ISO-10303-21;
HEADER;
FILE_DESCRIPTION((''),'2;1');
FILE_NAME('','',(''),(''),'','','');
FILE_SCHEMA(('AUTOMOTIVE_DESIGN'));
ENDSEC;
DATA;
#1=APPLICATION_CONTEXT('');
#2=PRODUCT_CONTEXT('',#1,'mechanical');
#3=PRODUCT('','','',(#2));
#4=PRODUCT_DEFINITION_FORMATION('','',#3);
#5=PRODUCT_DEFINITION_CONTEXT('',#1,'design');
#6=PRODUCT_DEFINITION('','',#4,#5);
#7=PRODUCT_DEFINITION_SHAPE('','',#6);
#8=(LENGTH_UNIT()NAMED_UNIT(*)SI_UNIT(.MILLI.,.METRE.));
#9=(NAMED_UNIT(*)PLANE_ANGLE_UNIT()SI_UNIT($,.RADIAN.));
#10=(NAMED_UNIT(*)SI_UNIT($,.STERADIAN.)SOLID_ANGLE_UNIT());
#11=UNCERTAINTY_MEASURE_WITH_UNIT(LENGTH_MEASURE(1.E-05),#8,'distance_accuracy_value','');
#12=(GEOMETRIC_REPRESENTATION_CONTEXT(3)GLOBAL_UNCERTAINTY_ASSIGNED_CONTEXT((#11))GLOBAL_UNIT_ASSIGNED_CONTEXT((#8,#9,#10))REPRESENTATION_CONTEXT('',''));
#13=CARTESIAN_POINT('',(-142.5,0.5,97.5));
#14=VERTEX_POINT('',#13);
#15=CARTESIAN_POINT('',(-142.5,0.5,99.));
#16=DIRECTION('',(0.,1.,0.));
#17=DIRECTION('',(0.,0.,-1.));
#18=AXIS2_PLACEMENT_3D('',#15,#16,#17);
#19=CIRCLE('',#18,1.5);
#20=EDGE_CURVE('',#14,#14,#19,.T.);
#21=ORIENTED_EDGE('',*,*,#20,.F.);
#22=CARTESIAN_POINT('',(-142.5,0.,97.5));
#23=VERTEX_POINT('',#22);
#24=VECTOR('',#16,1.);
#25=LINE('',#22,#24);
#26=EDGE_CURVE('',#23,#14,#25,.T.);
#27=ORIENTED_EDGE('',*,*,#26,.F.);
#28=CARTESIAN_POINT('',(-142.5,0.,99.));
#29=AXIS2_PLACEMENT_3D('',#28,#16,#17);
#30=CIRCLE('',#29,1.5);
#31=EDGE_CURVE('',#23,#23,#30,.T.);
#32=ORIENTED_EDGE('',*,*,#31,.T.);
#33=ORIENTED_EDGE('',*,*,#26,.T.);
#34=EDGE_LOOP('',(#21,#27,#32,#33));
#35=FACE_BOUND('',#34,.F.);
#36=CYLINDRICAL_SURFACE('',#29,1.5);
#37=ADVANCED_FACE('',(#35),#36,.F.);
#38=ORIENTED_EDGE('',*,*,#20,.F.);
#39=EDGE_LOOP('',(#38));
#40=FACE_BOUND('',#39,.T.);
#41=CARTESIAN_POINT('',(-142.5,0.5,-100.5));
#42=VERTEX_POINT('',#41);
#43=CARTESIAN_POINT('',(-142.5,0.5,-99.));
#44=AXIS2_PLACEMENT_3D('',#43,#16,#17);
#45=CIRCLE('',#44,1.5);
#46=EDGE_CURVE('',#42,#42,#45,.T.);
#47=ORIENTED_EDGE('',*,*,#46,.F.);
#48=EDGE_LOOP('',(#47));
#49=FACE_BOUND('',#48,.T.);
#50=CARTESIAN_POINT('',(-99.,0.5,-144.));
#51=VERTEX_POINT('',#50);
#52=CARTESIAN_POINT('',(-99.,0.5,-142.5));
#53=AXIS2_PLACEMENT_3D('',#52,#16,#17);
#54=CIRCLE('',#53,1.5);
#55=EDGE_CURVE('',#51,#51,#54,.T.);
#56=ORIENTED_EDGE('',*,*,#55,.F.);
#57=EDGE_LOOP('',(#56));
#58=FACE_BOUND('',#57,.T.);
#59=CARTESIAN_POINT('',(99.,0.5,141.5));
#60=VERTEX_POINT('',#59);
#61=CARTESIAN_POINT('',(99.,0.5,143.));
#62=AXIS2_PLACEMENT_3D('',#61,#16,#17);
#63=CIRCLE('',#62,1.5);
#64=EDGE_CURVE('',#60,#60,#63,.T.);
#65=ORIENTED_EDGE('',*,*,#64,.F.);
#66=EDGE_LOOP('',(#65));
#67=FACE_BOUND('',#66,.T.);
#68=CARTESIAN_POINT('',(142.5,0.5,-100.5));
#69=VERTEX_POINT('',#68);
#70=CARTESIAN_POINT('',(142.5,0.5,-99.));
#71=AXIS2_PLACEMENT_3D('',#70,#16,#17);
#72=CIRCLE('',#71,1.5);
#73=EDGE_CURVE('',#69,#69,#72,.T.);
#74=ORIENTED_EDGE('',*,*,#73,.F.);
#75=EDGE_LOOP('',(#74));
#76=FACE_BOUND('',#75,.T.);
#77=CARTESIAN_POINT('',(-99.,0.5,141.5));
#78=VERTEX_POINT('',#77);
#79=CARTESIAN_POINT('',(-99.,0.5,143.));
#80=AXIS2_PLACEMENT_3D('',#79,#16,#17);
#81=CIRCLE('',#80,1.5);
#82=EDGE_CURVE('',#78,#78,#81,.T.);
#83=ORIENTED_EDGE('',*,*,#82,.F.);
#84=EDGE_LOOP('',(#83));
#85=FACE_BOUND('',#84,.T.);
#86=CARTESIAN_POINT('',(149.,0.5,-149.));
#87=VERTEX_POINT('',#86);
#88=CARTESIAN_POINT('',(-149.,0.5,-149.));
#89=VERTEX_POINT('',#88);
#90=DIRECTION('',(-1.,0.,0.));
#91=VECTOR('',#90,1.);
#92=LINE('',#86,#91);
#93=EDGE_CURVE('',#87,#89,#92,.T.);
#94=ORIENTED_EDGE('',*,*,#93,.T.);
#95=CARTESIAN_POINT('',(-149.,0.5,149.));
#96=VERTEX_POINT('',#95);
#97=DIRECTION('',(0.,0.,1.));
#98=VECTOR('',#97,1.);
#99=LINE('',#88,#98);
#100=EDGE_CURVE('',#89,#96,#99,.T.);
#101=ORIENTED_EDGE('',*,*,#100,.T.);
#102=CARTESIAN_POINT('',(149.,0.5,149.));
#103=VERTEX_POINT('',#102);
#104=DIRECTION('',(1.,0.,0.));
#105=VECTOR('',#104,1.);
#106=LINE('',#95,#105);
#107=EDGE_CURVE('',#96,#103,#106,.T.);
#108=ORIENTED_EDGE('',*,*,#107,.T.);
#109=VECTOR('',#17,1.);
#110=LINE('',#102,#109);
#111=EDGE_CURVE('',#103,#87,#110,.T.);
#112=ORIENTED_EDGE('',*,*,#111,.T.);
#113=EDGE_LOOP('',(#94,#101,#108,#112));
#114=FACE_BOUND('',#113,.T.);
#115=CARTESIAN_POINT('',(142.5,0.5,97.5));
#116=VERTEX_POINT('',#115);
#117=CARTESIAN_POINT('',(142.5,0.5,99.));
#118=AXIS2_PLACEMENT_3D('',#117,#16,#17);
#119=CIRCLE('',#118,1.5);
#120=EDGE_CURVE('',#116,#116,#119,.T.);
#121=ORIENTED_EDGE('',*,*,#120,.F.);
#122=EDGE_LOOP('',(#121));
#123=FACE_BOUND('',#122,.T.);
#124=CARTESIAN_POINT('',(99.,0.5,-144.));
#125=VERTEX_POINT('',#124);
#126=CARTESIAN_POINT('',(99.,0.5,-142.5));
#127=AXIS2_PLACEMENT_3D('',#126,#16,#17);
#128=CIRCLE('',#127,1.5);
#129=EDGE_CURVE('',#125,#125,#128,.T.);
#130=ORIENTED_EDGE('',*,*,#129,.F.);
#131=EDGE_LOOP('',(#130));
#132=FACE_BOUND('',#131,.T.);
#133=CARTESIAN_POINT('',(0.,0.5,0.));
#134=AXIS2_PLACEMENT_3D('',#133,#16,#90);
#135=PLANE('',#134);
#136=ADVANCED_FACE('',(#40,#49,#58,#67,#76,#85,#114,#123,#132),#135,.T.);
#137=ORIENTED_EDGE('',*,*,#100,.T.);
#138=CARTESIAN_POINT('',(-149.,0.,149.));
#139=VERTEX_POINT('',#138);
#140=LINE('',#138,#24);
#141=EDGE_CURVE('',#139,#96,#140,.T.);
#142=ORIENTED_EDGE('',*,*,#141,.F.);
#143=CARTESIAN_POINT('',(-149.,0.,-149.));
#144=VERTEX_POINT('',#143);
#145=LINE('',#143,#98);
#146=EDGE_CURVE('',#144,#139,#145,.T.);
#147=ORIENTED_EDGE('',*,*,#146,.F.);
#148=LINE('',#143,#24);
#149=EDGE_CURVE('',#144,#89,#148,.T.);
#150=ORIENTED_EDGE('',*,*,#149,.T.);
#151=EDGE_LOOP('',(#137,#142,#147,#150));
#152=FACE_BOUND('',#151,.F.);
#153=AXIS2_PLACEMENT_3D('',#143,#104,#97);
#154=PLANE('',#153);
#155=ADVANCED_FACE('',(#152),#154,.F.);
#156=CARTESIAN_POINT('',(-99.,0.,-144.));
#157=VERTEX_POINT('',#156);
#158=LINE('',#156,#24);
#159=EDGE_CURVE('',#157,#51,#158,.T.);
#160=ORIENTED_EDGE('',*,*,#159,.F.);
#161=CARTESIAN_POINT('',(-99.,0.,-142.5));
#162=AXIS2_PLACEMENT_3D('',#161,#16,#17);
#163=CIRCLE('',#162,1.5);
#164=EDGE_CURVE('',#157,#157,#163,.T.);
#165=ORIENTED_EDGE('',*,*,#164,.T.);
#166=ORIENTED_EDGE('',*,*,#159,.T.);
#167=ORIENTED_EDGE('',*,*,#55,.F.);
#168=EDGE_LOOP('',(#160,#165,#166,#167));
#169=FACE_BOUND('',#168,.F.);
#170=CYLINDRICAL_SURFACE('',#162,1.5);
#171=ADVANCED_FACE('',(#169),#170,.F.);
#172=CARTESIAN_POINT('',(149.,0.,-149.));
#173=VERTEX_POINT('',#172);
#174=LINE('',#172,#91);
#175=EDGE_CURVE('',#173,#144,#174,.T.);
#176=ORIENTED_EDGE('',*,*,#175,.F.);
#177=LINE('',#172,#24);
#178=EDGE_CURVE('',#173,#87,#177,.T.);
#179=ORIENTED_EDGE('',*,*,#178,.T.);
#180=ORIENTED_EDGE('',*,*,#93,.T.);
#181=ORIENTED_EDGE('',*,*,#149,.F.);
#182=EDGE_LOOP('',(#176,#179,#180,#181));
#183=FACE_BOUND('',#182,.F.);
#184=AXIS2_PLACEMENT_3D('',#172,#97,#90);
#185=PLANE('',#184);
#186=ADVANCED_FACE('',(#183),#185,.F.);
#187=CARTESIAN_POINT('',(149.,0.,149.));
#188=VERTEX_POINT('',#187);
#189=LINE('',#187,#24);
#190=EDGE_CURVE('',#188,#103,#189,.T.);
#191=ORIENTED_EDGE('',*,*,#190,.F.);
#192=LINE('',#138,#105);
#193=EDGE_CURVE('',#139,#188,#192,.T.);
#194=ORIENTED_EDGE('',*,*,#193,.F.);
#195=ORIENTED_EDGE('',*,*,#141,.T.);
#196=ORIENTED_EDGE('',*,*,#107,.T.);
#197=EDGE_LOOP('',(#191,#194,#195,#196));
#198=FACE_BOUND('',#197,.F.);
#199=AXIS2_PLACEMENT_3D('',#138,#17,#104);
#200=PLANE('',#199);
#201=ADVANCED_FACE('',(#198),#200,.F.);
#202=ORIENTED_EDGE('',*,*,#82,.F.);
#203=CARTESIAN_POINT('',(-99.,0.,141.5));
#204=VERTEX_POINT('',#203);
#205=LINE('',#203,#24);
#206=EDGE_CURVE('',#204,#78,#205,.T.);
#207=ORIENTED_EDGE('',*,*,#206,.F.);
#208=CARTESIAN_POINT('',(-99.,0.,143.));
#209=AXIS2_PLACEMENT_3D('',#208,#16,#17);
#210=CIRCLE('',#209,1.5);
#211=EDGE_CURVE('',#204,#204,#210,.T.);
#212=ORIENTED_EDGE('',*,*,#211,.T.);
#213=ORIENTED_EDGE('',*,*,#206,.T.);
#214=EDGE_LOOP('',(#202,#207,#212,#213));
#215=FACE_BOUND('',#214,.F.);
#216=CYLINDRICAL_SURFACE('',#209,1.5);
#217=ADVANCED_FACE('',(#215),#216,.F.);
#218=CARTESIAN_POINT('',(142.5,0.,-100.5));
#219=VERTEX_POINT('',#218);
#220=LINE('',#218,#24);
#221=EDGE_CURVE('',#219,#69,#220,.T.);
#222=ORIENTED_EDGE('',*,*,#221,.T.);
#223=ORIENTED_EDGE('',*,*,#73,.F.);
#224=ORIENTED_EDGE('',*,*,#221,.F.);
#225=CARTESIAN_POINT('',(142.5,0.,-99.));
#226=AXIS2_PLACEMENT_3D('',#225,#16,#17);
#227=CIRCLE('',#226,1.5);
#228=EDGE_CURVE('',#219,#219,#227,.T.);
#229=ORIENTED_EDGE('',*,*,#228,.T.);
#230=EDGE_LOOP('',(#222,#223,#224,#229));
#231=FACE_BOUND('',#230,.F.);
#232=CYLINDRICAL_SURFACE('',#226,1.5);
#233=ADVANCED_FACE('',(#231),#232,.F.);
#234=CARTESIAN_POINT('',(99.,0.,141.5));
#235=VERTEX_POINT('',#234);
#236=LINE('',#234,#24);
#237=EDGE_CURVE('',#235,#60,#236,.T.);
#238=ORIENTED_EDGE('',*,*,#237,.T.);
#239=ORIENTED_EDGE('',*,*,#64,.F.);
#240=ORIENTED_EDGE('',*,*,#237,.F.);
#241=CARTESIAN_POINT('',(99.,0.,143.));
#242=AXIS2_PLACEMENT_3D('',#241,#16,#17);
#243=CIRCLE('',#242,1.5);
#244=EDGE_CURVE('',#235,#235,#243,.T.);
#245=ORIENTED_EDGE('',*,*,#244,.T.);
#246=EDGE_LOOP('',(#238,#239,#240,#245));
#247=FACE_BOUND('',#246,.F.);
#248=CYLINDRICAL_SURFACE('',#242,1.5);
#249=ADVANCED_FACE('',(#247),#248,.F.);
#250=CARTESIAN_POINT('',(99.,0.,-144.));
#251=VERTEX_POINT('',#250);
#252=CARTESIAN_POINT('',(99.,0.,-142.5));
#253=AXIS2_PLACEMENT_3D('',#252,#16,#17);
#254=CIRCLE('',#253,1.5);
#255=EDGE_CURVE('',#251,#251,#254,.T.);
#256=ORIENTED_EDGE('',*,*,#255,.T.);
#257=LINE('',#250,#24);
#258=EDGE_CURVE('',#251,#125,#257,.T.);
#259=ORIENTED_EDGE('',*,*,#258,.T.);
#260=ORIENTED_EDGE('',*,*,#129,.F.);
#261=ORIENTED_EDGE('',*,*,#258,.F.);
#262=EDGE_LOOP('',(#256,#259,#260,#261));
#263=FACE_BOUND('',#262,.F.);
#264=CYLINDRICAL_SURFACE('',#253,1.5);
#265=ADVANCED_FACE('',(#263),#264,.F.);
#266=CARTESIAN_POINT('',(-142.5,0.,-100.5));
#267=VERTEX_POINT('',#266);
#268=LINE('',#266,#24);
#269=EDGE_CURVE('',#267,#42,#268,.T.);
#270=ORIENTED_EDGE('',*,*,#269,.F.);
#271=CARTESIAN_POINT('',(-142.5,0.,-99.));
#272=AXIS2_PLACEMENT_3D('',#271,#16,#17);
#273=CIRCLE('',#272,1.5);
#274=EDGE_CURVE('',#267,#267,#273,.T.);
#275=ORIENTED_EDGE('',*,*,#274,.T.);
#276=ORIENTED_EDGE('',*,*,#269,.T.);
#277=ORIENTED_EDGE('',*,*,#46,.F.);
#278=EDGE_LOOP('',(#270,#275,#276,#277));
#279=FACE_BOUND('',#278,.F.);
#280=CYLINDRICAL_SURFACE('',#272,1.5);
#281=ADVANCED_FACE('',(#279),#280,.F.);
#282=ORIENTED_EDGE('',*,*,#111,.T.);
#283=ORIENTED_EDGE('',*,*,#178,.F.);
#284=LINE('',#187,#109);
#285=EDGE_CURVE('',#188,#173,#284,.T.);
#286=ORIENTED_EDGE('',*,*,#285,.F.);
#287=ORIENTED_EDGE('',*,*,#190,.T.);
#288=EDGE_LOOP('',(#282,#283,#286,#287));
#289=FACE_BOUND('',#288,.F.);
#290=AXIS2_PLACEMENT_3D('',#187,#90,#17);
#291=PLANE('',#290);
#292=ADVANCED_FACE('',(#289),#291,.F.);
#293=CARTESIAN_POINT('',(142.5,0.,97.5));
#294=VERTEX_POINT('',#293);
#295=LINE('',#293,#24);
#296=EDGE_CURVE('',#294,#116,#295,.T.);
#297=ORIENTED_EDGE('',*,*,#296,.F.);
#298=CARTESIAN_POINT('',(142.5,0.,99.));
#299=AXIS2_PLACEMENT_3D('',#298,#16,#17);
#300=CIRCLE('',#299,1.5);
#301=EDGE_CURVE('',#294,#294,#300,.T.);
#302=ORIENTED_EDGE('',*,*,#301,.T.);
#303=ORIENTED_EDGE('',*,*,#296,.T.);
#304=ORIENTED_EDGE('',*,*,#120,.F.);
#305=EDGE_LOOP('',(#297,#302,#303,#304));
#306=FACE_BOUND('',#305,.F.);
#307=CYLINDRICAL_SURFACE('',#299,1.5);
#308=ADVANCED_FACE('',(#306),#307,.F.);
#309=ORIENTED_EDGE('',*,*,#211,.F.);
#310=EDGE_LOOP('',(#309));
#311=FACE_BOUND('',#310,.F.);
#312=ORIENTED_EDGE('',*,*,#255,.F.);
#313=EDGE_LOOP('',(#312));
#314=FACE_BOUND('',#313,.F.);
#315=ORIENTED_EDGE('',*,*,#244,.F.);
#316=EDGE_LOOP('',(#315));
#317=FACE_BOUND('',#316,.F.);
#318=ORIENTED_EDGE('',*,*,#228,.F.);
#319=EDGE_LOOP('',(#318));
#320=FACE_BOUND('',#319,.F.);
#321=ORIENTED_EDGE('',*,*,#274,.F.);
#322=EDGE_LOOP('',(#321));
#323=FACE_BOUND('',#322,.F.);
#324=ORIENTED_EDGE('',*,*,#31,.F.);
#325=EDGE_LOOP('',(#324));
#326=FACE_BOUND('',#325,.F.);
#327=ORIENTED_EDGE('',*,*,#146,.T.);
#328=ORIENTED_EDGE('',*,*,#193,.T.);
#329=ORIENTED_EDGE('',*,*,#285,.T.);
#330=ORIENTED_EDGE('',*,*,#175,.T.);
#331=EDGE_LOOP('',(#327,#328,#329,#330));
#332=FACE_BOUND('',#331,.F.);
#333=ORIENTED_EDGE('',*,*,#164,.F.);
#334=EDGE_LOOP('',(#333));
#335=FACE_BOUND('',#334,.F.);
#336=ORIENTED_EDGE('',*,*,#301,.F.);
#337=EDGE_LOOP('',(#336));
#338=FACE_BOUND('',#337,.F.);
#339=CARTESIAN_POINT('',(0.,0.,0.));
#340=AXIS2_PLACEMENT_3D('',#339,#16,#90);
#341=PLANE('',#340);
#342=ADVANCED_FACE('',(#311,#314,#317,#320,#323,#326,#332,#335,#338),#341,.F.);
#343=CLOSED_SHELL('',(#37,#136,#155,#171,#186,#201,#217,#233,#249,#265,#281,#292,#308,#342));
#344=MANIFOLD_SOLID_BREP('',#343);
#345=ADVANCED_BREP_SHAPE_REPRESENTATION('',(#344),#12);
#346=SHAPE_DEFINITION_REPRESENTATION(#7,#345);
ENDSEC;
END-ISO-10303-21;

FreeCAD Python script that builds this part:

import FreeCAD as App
import Part
import Sketcher

V = App.Vector


def add_polygon(sketch, points):
    """Adds a closed chain of lines whose ends are joined by coincident constraints."""
    first, n = sketch.GeometryCount, len(points)
    for a, b in zip(points, points[1:] + points[:1]):
        sketch.addGeometry(Part.LineSegment(App.Vector(*a, 0), App.Vector(*b, 0)), False)
    for i in range(n):
        sketch.addConstraint(Sketcher.Constraint("Coincident", first + i, 2, first + (i + 1) % n, 1))

doc = App.newDocument("Part")
params = doc.addObject("Spreadsheet::Sheet", "Params")
for row, (alias, value) in enumerate([
    ("sketch1_width", "298 mm"),
    ("pad1_length", "0.5 mm"),
    ("sketch2_diameter", "3 mm"),
    ("hole_diameter", "3 mm"),
], start=1):
    params.set(f"A{row}", alias)
    params.set(f"B{row}", "=" + value)
    params.setAlias(f"B{row}", alias)

body = doc.addObject("PartDesign::Body", "Body")

# Sketch on XZ plane
sketch1 = doc.addObject("Sketcher::SketchObject", "Sketch")
body.addObject(sketch1)
sketch1.AttachmentSupport = (doc.XZ_Plane, [""])
sketch1.MapMode = "FlatFace"
add_polygon(sketch1, [(149, 149), (149, -149), (-149, -149), (-149, 149)])  # lines 0-3
sketch1.addConstraint([
    Sketcher.Constraint("Vertical", 0),
    Sketcher.Constraint("Horizontal", 1),
    Sketcher.Constraint("Vertical", 2),
    Sketcher.Constraint("Horizontal", 3),
    Sketcher.Constraint("Symmetric", 0, 2, 2, 2, -1, 1),
    Sketcher.Constraint("Equal", 3, 0),
    Sketcher.Constraint("DistanceX", 1, 2, 1, 1, 298.0),
])
sketch1.setExpression("Constraints[10]", "Params.sketch1_width")
pad1 = doc.addObject("PartDesign::Pad", "Pad")
body.addObject(pad1)
pad1.Profile = sketch1
pad1.setExpression("Length", "Params.pad1_length")
pad1.Reversed = True

# Sketch on XZ plane
sketch2 = doc.addObject("Sketcher::SketchObject", "Sketch001")
body.addObject(sketch2)
sketch2.AttachmentSupport = (doc.XZ_Plane, [""])
sketch2.MapMode = "FlatFace"
sketch2.addGeometry([
    Part.Circle(V(-99, 143, 0), V(0, 0, 1), 1.5),  # 0
    Part.Circle(V(99, 143, 0), V(0, 0, 1), 1.5),  # 1
    Part.Circle(V(142.5, 99, 0), V(0, 0, 1), 1.5),  # 2
    Part.Circle(V(142.5, -99, 0), V(0, 0, 1), 1.5),  # 3
    Part.Circle(V(99, -142.5, 0), V(0, 0, 1), 1.5),  # 4
    Part.Circle(V(-99, -142.5, 0), V(0, 0, 1), 1.5),  # 5
    Part.Circle(V(-142.5, -99, 0), V(0, 0, 1), 1.5),  # 6
    Part.Circle(V(-142.5, 99, 0), V(0, 0, 1), 1.5),  # 7
], False)
sketch2.addConstraint([
    Sketcher.Constraint("Equal", 0, 1),
    Sketcher.Constraint("Equal", 1, 2),
    Sketcher.Constraint("Equal", 2, 3),
    Sketcher.Constraint("Equal", 3, 4),
    Sketcher.Constraint("Equal", 4, 5),
    Sketcher.Constraint("Equal", 5, 6),
    Sketcher.Constraint("Equal", 6, 7),
    Sketcher.Constraint("Symmetric", 2, 3, 6, 3, -1, 1),
    Sketcher.Constraint("Symmetric", 3, 3, 7, 3, -1, 1),
    Sketcher.Constraint("Symmetric", 0, 3, 1, 3, -2),
    Sketcher.Constraint("Symmetric", 4, 3, 5, 3, -2),
    Sketcher.Constraint("Symmetric", 3, 3, 6, 3, -2),
    Sketcher.Constraint("Vertical", 1, 3, 4, 3),
    Sketcher.Constraint("Diameter", 0, 3.0),
    Sketcher.Constraint("DistanceX", 0, 3, -1, 1, 99.0),
    Sketcher.Constraint("DistanceY", -1, 1, 0, 3, 143.0),
    Sketcher.Constraint("DistanceY", -1, 1, 2, 3, 99.0),
    Sketcher.Constraint("DistanceX", 6, 3, 3, 3, 285.0),
    Sketcher.Constraint("DistanceY", 4, 3, -1, 1, 142.5),
])
sketch2.setExpression("Constraints[13]", "Params.sketch2_diameter")
doc.recompute()
hole = doc.addObject("PartDesign::Hole", "Hole")
body.addObject(hole)
hole.Profile = sketch2
hole.ThreadType = "None"
hole.setExpression("Diameter", "Params.hole_diameter")
hole.DepthType = "ThroughAll"

doc.recompute()
